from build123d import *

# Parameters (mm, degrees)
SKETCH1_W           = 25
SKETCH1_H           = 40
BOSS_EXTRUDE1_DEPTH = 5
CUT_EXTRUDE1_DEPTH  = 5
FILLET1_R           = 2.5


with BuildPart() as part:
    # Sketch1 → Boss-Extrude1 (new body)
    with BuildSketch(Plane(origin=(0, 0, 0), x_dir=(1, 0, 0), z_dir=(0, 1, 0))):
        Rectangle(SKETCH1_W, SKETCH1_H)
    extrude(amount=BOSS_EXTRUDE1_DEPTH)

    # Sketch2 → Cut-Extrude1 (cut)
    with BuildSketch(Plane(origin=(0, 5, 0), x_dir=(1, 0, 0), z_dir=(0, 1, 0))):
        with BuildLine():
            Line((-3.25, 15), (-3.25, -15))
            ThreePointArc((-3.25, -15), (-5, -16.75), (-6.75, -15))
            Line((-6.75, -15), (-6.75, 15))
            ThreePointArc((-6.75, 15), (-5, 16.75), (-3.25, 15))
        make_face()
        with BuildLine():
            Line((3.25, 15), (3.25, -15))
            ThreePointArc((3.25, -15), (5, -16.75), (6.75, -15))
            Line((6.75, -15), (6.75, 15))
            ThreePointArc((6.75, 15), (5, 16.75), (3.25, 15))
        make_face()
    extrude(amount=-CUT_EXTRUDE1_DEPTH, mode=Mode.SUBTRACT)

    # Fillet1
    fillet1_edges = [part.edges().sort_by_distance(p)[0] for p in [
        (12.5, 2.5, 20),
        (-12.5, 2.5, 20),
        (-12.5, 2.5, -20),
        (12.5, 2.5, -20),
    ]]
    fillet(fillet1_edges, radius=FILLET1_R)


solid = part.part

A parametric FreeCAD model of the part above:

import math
import FreeCAD as App
import Part
import Sketcher
from FreeCAD import Vector
Q = App.Units.Quantity


def edges_at(feature, points):
    """Names of the edges that pass closest to the given points."""
    edges = feature.Shape.Edges
    near = lambda p: min(range(len(edges)), key=lambda i: edges[i].distToShape(Part.Vertex(*p))[0])
    return sorted({f"Edge{near(p) + 1}" for p in points})


def add_polygon(sketch, points):
    """Adds a closed chain of lines whose ends are joined by coincident constraints."""
    first, n = sketch.GeometryCount, len(points)
    for a, b in zip(points, points[1:] + points[:1]):
        sketch.addGeometry(Part.LineSegment(App.Vector(*a, 0), App.Vector(*b, 0)), False)
    for i in range(n):
        sketch.addConstraint(Sketcher.Constraint("Coincident", first + i, 2, first + (i + 1) % n, 1))

doc = App.newDocument("Part")
body = doc.addObject("PartDesign::Body", "Body")

# Sketch on XZ plane
sketch1 = doc.addObject("Sketcher::SketchObject", "Sketch")
body.addObject(sketch1)
sketch1.AttachmentSupport = (doc.XZ_Plane, [""])
sketch1.MapMode = "FlatFace"
add_polygon(sketch1, [(-12.5, -20), (-12.5, 20), (12.5, 20), (12.5, -20)])  # lines 0-3
sketch1.addConstraint(Sketcher.Constraint("Vertical", 0))
sketch1.addConstraint(Sketcher.Constraint("Horizontal", 1))
sketch1.addConstraint(Sketcher.Constraint("Vertical", 2))
sketch1.addConstraint(Sketcher.Constraint("Horizontal", 3))
sketch1.addConstraint(Sketcher.Constraint("Symmetric", 0, 2, 2, 2, -1, 1))
sketch1.addConstraint(Sketcher.Constraint("DistanceX", 1, 1, 1, 2, Q("25 mm")))
sketch1.addConstraint(Sketcher.Constraint("DistanceY", 0, 1, 0, 2, Q("40 mm")))
pad1 = doc.addObject("PartDesign::Pad", "Pad")
body.addObject(pad1)
pad1.Profile = sketch1
pad1.Length = 5
pad1.Reversed = True

# Sketch on XZ plane
sketch2 = doc.addObject("Sketcher::SketchObject", "Sketch001")
body.addObject(sketch2)
sketch2.AttachmentSupport = (doc.XZ_Plane, [""])
sketch2.MapMode = "FlatFace"
sketch2.AttachmentOffset = App.Placement(Vector(0, 0, -5), App.Rotation())
sketch2.addGeometry(Part.LineSegment(Vector(-3.25, 15, 0), Vector(-3.25, -15, 0)), False)
sketch2.addGeometry(Part.ArcOfCircle(Part.Circle(Vector(-5, -15, 0), Vector(0, 0, 1), 1.75), math.radians(180), math.radians(360)), False)
sketch2.addGeometry(Part.LineSegment(Vector(-6.75, -15, 0), Vector(-6.75, 15, 0)), False)
sketch2.addGeometry(Part.ArcOfCircle(Part.Circle(Vector(-5, 15, 0), Vector(0, 0, 1), 1.75), math.radians(0), math.radians(180)), False)
sketch2.addGeometry(Part.LineSegment(Vector(3.25, -15, 0), Vector(3.25, 15, 0)), False)
sketch2.addGeometry(Part.ArcOfCircle(Part.Circle(Vector(5, 15, 0), Vector(0, 0, 1), 1.75), math.radians(0), math.radians(180)), False)
sketch2.addGeometry(Part.LineSegment(Vector(6.75, 15, 0), Vector(6.75, -15, 0)), False)
sketch2.addGeometry(Part.ArcOfCircle(Part.Circle(Vector(5, -15, 0), Vector(0, 0, 1), 1.75), math.radians(180), math.radians(360)), False)
sketch2.addConstraint(Sketcher.Constraint("Tangent", 0, 2, 1, 2))
sketch2.addConstraint(Sketcher.Constraint("Tangent", 1, 1, 2, 1))
sketch2.addConstraint(Sketcher.Constraint("Tangent", 2, 2, 3, 2))
sketch2.addConstraint(Sketcher.Constraint("Tangent", 3, 1, 0, 1))
sketch2.addConstraint(Sketcher.Constraint("Tangent", 4, 2, 5, 2))
sketch2.addConstraint(Sketcher.Constraint("Tangent", 5, 1, 6, 1))
sketch2.addConstraint(Sketcher.Constraint("Tangent", 6, 2, 7, 2))
sketch2.addConstraint(Sketcher.Constraint("Tangent", 7, 1, 4, 1))
sketch2.addConstraint(Sketcher.Constraint("Vertical", 0))
sketch2.addConstraint(Sketcher.Constraint("Vertical", 2))
sketch2.addConstraint(Sketcher.Constraint("Vertical", 4))
sketch2.addConstraint(Sketcher.Constraint("Vertical", 6))
sketch2.addConstraint(Sketcher.Constraint("Equal", 3, 5))
sketch2.addConstraint(Sketcher.Constraint("Symmetric", 1, 3, 5, 3, -1, 1))
sketch2.addConstraint(Sketcher.Constraint("Horizontal", 3, 3, 5, 3))
sketch2.addConstraint(Sketcher.Constraint("Horizontal", 1, 3, 7, 3))
sketch2.addConstraint(Sketcher.Constraint("DistanceY", 0, 2, 0, 1, Q("30 mm")))
sketch2.addConstraint(Sketcher.Constraint("Radius", 1, Q("1.75 mm")))
sketch2.addConstraint(Sketcher.Constraint("DistanceX", 1, 3, -1, 1, Q("5 mm")))
pocket1 = doc.addObject("PartDesign::Pocket", "Pocket")
body.addObject(pocket1)
pocket1.Profile = sketch2
pocket1.Length = 5
pocket1.Reversed = True
doc.recompute()

fillet = doc.addObject("PartDesign::Fillet", "Fillet")
body.addObject(fillet)
fillet.Base = (pocket1, edges_at(pocket1, [
    (12.5, 2.5, 20),
    (-12.5, 2.5, 20),
    (-12.5, 2.5, -20),
    (12.5, 2.5, -20),
]))
fillet.Radius = 2.5

doc.recompute()
